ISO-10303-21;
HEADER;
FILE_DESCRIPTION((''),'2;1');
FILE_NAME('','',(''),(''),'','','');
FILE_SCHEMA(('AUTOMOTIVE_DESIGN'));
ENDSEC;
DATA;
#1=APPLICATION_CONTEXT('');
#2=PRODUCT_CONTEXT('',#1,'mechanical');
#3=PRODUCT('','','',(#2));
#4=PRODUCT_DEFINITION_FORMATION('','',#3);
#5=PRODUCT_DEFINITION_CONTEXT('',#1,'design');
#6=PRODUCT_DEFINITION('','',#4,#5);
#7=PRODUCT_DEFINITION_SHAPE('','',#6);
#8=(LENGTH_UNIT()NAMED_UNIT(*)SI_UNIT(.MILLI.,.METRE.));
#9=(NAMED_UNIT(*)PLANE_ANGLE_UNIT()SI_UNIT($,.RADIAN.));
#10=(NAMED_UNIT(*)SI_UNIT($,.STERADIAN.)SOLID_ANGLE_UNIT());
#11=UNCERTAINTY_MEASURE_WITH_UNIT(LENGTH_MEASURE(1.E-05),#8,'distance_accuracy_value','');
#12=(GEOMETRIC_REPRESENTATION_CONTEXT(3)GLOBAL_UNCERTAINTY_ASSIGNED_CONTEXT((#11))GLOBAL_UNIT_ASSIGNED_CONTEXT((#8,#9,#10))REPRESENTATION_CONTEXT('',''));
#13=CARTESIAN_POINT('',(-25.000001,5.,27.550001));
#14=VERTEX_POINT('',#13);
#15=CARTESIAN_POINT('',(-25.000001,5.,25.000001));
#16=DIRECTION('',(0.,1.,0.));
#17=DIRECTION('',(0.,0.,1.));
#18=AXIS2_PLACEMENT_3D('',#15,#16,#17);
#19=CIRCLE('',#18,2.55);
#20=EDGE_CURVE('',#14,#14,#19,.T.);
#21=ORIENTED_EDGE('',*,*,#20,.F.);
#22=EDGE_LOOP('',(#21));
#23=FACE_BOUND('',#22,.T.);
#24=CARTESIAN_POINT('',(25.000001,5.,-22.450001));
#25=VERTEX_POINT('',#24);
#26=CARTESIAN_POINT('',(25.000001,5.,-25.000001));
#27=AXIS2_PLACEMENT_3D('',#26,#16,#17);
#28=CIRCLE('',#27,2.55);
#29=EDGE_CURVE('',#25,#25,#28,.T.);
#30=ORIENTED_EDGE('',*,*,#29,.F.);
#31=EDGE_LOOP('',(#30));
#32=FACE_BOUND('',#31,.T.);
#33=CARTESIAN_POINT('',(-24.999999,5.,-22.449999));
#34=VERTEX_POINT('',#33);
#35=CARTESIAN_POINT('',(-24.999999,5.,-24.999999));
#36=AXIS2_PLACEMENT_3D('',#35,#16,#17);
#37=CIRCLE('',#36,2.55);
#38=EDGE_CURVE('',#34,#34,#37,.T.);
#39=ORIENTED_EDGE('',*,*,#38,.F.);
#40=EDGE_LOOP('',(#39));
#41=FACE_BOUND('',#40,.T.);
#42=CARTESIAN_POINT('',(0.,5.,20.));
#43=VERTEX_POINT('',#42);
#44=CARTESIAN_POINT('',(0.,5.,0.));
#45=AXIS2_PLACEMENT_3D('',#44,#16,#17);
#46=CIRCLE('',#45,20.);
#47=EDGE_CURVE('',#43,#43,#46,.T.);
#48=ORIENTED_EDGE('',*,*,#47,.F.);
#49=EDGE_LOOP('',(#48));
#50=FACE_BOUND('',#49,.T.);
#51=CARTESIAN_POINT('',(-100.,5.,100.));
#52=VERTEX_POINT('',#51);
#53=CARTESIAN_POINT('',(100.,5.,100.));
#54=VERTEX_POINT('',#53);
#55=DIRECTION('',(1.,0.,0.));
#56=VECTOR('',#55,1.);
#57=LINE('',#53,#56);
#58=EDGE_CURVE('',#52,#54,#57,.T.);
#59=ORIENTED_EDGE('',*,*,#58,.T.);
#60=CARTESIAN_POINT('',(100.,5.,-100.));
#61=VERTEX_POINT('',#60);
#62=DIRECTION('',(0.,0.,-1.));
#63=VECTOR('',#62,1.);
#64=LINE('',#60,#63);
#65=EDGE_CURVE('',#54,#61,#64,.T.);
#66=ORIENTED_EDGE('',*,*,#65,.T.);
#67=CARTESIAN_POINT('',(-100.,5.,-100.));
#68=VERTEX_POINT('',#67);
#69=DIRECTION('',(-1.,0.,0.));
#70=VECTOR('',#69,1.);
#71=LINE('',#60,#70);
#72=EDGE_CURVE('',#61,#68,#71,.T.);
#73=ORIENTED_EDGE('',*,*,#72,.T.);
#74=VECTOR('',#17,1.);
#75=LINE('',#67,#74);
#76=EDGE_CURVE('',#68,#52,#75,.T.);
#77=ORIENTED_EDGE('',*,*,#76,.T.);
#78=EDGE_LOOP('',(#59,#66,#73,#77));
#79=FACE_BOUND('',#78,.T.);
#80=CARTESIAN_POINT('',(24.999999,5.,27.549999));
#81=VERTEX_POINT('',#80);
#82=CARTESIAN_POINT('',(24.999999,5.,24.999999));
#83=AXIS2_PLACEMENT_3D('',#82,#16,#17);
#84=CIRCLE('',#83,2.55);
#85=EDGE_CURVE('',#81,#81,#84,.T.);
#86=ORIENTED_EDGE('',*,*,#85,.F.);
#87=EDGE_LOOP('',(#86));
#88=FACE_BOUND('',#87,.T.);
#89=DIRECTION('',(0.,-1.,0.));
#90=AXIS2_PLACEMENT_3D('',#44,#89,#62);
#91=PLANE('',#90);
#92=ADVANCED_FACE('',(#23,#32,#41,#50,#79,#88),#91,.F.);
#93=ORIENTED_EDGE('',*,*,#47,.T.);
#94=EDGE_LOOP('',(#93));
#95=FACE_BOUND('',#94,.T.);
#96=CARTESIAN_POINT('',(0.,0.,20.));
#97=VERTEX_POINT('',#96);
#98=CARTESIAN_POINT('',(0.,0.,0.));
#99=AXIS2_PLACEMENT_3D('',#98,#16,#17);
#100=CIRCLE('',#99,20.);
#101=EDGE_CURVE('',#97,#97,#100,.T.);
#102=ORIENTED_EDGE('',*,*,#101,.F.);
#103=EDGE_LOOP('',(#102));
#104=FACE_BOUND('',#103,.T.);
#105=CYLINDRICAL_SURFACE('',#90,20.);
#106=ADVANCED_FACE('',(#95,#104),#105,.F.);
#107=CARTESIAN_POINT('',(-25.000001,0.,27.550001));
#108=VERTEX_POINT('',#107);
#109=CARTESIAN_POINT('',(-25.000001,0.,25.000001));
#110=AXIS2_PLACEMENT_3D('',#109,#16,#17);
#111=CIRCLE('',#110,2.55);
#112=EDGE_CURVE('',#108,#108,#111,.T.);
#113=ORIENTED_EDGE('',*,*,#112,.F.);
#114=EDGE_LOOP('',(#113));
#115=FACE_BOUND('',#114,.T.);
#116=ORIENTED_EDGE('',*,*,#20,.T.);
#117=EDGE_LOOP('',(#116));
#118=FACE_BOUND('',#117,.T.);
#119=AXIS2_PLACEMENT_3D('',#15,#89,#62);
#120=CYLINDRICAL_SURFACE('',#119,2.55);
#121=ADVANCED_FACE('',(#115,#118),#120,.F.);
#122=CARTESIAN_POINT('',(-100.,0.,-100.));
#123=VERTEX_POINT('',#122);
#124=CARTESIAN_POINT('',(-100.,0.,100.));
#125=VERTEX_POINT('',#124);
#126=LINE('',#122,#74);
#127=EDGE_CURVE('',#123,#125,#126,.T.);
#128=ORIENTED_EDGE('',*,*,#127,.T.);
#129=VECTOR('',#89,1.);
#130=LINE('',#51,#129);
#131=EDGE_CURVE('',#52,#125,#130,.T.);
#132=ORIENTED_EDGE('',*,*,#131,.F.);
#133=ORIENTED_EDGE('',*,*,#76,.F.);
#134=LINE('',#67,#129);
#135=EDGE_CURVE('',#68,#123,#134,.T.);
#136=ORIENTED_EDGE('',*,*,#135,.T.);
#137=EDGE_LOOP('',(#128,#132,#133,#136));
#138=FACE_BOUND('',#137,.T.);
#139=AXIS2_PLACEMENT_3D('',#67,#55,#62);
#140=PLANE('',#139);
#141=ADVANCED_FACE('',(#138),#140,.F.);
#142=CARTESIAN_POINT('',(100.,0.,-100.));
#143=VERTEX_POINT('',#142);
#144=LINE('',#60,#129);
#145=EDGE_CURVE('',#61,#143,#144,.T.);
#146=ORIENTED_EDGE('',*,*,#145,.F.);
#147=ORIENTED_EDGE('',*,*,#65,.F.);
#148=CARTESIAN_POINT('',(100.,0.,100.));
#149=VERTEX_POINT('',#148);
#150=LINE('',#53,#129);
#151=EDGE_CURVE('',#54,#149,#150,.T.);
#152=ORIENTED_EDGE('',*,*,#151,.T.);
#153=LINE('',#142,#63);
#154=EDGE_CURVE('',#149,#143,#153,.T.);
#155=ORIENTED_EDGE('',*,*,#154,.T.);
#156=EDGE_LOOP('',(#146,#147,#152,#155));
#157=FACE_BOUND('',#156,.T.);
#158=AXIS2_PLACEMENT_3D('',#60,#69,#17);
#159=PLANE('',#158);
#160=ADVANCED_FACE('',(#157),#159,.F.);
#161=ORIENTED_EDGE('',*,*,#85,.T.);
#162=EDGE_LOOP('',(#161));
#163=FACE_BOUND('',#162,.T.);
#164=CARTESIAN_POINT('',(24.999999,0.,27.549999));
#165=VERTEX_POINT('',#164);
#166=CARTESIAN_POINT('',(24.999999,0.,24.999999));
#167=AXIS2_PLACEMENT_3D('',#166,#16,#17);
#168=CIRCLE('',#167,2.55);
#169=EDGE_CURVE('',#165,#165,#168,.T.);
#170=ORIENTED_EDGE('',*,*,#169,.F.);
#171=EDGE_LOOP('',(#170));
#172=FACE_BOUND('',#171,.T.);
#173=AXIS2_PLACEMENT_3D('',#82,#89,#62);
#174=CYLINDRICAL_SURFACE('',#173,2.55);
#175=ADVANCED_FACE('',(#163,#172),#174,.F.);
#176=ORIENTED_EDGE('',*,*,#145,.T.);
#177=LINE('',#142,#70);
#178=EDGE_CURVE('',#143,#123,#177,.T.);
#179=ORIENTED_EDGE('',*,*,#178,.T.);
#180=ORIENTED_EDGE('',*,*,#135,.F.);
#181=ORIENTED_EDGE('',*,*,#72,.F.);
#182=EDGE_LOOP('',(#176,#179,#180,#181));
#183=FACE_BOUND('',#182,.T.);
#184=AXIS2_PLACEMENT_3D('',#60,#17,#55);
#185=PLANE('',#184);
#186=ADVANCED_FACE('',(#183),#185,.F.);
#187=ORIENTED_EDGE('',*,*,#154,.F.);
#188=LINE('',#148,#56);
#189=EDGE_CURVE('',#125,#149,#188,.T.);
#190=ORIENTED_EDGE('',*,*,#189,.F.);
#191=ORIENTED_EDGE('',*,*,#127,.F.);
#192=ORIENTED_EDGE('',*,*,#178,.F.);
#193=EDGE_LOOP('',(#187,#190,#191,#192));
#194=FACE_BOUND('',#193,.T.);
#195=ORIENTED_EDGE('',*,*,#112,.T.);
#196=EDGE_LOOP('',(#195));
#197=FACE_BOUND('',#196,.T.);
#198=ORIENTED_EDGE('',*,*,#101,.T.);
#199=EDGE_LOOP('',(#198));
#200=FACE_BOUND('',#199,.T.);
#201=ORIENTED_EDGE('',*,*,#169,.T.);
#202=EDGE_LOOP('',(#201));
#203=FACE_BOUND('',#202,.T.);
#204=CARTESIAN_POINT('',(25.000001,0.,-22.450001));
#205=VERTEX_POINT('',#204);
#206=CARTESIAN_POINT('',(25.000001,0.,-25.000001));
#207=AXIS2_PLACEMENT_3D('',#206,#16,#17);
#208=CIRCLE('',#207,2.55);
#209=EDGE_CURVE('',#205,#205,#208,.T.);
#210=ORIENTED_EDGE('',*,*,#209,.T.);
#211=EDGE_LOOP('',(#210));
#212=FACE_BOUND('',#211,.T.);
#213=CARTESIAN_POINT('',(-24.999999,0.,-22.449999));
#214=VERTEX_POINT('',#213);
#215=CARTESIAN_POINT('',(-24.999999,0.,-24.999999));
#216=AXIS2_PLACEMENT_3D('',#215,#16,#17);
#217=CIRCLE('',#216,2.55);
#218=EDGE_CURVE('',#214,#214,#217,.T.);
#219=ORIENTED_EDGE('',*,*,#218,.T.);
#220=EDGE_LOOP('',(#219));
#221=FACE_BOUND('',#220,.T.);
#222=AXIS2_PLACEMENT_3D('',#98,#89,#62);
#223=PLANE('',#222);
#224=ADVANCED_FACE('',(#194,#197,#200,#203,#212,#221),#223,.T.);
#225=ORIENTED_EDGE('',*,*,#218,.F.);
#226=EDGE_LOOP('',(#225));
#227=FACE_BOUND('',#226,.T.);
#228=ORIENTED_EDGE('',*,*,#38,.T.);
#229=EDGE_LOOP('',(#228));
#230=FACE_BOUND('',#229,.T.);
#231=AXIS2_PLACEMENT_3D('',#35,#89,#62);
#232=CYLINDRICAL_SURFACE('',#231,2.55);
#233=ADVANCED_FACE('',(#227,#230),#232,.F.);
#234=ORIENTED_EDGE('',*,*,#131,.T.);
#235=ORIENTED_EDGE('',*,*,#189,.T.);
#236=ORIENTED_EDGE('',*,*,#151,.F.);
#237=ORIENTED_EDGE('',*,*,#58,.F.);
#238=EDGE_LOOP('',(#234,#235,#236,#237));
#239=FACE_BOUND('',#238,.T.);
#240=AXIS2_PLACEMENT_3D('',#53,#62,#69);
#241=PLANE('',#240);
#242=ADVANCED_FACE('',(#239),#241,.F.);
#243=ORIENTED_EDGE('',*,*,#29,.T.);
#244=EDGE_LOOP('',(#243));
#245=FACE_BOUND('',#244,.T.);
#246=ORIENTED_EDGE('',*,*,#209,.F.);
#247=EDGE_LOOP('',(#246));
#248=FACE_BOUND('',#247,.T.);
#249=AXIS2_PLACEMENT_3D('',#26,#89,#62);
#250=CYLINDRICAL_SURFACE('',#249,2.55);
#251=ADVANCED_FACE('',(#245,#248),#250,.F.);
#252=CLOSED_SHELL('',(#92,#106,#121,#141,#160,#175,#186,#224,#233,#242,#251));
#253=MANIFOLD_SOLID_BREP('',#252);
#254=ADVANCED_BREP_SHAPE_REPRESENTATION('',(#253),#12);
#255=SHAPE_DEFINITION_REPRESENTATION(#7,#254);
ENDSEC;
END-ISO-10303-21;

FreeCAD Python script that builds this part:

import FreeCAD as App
import Part
import Sketcher
from FreeCAD import Vector


def add_polygon(sketch, points):
    """Adds a closed chain of lines whose ends are joined by coincident constraints."""
    first, n = sketch.GeometryCount, len(points)
    for a, b in zip(points, points[1:] + points[:1]):
        sketch.addGeometry(Part.LineSegment(App.Vector(*a, 0), App.Vector(*b, 0)), False)
    for i in range(n):
        sketch.addConstraint(Sketcher.Constraint("Coincident", first + i, 2, first + (i + 1) % n, 1))

doc = App.newDocument("Part")
params = doc.addObject("Spreadsheet::Sheet", "Params")
for row, (alias, value) in enumerate([
    ("sketch1_diameter", "40 mm"),
    ("sketch1_diameter2", "5.1 mm"),
    ("sketch1_width", "200 mm"),
    ("pad1_length", "5 mm"),
], start=1):
    params.set(f"A{row}", alias)
    params.set(f"B{row}", "=" + value)
    params.setAlias(f"B{row}", alias)

body = doc.addObject("PartDesign::Body", "Body")

sketch1 = doc.addObject("Sketcher::SketchObject", "Sketch")
body.addObject(sketch1)
sketch1.AttachmentSupport = (doc.XZ_Plane, [""])
sketch1.MapMode = "FlatFace"
add_polygon(sketch1, [(-100, -100), (-100, 100), (100, 100), (100, -100)])
sketch1.addGeometry(Part.Circle(Vector(-25, 25, 0), Vector(0, 0, 1), 2.5), False)
sketch1.addGeometry(Part.Circle(Vector(25, 25, 0), Vector(0, 0, 1), 2.5), False)
sketch1.addGeometry(Part.Circle(Vector(-25, -25, 0), Vector(0, 0, 1), 2.5), False)
sketch1.addGeometry(Part.Circle(Vector(0, 0, 0), Vector(0, 0, 1), 20), False)
sketch1.addGeometry(Part.Circle(Vector(25, -25, 0), Vector(0, 0, 1), 2.5), False)
sketch1.addConstraint(Sketcher.Constraint("Vertical", 0))
sketch1.addConstraint(Sketcher.Constraint("Horizontal", 1))
sketch1.addConstraint(Sketcher.Constraint("Vertical", 2))
sketch1.addConstraint(Sketcher.Constraint("Horizontal", 3))
sketch1.addConstraint(Sketcher.Constraint("Coincident", 7, 3, -1, 1))
sketch1.addConstraint(Sketcher.Constraint("Equal", 4, 5))
sketch1.addConstraint(Sketcher.Constraint("Equal", 5, 6))
sketch1.addConstraint(Sketcher.Constraint("Equal", 6, 8))
sketch1.addConstraint(Sketcher.Constraint("Symmetric", 5, 3, 6, 3, -1, 1))
sketch1.addConstraint(Sketcher.Constraint("Symmetric", 4, 3, 8, 3, -1, 1))
sketch1.addConstraint(Sketcher.Constraint("Symmetric", 0, 2, 2, 2, -1, 1))
sketch1.addConstraint(Sketcher.Constraint("Symmetric", 4, 3, 5, 3, -2))
sketch1.addConstraint(Sketcher.Constraint("Equal", 3, 0))
sketch1.addConstraint(Sketcher.Constraint("Diameter", 7, 40.0))
sketch1.addConstraint(Sketcher.Constraint("Diameter", 4, 5.1))
sketch1.addConstraint(Sketcher.Constraint("DistanceX", 1, 1, 1, 2, 200.0))
sketch1.addConstraint(Sketcher.Constraint("DistanceX", 4, 3, -1, 1, 25.000001))
sketch1.addConstraint(Sketcher.Constraint("DistanceY", -1, 1, 4, 3, 25.000001))
sketch1.setExpression("Constraints[17]", "Params.sketch1_diameter")
sketch1.setExpression("Constraints[18]", "Params.sketch1_diameter2")
sketch1.setExpression("Constraints[19]", "Params.sketch1_width")
pad1 = doc.addObject("PartDesign::Pad", "Pad")
body.addObject(pad1)
pad1.Profile = sketch1
pad1.setExpression("Length", "Params.pad1_length")
pad1.Reversed = True

doc.recompute()
